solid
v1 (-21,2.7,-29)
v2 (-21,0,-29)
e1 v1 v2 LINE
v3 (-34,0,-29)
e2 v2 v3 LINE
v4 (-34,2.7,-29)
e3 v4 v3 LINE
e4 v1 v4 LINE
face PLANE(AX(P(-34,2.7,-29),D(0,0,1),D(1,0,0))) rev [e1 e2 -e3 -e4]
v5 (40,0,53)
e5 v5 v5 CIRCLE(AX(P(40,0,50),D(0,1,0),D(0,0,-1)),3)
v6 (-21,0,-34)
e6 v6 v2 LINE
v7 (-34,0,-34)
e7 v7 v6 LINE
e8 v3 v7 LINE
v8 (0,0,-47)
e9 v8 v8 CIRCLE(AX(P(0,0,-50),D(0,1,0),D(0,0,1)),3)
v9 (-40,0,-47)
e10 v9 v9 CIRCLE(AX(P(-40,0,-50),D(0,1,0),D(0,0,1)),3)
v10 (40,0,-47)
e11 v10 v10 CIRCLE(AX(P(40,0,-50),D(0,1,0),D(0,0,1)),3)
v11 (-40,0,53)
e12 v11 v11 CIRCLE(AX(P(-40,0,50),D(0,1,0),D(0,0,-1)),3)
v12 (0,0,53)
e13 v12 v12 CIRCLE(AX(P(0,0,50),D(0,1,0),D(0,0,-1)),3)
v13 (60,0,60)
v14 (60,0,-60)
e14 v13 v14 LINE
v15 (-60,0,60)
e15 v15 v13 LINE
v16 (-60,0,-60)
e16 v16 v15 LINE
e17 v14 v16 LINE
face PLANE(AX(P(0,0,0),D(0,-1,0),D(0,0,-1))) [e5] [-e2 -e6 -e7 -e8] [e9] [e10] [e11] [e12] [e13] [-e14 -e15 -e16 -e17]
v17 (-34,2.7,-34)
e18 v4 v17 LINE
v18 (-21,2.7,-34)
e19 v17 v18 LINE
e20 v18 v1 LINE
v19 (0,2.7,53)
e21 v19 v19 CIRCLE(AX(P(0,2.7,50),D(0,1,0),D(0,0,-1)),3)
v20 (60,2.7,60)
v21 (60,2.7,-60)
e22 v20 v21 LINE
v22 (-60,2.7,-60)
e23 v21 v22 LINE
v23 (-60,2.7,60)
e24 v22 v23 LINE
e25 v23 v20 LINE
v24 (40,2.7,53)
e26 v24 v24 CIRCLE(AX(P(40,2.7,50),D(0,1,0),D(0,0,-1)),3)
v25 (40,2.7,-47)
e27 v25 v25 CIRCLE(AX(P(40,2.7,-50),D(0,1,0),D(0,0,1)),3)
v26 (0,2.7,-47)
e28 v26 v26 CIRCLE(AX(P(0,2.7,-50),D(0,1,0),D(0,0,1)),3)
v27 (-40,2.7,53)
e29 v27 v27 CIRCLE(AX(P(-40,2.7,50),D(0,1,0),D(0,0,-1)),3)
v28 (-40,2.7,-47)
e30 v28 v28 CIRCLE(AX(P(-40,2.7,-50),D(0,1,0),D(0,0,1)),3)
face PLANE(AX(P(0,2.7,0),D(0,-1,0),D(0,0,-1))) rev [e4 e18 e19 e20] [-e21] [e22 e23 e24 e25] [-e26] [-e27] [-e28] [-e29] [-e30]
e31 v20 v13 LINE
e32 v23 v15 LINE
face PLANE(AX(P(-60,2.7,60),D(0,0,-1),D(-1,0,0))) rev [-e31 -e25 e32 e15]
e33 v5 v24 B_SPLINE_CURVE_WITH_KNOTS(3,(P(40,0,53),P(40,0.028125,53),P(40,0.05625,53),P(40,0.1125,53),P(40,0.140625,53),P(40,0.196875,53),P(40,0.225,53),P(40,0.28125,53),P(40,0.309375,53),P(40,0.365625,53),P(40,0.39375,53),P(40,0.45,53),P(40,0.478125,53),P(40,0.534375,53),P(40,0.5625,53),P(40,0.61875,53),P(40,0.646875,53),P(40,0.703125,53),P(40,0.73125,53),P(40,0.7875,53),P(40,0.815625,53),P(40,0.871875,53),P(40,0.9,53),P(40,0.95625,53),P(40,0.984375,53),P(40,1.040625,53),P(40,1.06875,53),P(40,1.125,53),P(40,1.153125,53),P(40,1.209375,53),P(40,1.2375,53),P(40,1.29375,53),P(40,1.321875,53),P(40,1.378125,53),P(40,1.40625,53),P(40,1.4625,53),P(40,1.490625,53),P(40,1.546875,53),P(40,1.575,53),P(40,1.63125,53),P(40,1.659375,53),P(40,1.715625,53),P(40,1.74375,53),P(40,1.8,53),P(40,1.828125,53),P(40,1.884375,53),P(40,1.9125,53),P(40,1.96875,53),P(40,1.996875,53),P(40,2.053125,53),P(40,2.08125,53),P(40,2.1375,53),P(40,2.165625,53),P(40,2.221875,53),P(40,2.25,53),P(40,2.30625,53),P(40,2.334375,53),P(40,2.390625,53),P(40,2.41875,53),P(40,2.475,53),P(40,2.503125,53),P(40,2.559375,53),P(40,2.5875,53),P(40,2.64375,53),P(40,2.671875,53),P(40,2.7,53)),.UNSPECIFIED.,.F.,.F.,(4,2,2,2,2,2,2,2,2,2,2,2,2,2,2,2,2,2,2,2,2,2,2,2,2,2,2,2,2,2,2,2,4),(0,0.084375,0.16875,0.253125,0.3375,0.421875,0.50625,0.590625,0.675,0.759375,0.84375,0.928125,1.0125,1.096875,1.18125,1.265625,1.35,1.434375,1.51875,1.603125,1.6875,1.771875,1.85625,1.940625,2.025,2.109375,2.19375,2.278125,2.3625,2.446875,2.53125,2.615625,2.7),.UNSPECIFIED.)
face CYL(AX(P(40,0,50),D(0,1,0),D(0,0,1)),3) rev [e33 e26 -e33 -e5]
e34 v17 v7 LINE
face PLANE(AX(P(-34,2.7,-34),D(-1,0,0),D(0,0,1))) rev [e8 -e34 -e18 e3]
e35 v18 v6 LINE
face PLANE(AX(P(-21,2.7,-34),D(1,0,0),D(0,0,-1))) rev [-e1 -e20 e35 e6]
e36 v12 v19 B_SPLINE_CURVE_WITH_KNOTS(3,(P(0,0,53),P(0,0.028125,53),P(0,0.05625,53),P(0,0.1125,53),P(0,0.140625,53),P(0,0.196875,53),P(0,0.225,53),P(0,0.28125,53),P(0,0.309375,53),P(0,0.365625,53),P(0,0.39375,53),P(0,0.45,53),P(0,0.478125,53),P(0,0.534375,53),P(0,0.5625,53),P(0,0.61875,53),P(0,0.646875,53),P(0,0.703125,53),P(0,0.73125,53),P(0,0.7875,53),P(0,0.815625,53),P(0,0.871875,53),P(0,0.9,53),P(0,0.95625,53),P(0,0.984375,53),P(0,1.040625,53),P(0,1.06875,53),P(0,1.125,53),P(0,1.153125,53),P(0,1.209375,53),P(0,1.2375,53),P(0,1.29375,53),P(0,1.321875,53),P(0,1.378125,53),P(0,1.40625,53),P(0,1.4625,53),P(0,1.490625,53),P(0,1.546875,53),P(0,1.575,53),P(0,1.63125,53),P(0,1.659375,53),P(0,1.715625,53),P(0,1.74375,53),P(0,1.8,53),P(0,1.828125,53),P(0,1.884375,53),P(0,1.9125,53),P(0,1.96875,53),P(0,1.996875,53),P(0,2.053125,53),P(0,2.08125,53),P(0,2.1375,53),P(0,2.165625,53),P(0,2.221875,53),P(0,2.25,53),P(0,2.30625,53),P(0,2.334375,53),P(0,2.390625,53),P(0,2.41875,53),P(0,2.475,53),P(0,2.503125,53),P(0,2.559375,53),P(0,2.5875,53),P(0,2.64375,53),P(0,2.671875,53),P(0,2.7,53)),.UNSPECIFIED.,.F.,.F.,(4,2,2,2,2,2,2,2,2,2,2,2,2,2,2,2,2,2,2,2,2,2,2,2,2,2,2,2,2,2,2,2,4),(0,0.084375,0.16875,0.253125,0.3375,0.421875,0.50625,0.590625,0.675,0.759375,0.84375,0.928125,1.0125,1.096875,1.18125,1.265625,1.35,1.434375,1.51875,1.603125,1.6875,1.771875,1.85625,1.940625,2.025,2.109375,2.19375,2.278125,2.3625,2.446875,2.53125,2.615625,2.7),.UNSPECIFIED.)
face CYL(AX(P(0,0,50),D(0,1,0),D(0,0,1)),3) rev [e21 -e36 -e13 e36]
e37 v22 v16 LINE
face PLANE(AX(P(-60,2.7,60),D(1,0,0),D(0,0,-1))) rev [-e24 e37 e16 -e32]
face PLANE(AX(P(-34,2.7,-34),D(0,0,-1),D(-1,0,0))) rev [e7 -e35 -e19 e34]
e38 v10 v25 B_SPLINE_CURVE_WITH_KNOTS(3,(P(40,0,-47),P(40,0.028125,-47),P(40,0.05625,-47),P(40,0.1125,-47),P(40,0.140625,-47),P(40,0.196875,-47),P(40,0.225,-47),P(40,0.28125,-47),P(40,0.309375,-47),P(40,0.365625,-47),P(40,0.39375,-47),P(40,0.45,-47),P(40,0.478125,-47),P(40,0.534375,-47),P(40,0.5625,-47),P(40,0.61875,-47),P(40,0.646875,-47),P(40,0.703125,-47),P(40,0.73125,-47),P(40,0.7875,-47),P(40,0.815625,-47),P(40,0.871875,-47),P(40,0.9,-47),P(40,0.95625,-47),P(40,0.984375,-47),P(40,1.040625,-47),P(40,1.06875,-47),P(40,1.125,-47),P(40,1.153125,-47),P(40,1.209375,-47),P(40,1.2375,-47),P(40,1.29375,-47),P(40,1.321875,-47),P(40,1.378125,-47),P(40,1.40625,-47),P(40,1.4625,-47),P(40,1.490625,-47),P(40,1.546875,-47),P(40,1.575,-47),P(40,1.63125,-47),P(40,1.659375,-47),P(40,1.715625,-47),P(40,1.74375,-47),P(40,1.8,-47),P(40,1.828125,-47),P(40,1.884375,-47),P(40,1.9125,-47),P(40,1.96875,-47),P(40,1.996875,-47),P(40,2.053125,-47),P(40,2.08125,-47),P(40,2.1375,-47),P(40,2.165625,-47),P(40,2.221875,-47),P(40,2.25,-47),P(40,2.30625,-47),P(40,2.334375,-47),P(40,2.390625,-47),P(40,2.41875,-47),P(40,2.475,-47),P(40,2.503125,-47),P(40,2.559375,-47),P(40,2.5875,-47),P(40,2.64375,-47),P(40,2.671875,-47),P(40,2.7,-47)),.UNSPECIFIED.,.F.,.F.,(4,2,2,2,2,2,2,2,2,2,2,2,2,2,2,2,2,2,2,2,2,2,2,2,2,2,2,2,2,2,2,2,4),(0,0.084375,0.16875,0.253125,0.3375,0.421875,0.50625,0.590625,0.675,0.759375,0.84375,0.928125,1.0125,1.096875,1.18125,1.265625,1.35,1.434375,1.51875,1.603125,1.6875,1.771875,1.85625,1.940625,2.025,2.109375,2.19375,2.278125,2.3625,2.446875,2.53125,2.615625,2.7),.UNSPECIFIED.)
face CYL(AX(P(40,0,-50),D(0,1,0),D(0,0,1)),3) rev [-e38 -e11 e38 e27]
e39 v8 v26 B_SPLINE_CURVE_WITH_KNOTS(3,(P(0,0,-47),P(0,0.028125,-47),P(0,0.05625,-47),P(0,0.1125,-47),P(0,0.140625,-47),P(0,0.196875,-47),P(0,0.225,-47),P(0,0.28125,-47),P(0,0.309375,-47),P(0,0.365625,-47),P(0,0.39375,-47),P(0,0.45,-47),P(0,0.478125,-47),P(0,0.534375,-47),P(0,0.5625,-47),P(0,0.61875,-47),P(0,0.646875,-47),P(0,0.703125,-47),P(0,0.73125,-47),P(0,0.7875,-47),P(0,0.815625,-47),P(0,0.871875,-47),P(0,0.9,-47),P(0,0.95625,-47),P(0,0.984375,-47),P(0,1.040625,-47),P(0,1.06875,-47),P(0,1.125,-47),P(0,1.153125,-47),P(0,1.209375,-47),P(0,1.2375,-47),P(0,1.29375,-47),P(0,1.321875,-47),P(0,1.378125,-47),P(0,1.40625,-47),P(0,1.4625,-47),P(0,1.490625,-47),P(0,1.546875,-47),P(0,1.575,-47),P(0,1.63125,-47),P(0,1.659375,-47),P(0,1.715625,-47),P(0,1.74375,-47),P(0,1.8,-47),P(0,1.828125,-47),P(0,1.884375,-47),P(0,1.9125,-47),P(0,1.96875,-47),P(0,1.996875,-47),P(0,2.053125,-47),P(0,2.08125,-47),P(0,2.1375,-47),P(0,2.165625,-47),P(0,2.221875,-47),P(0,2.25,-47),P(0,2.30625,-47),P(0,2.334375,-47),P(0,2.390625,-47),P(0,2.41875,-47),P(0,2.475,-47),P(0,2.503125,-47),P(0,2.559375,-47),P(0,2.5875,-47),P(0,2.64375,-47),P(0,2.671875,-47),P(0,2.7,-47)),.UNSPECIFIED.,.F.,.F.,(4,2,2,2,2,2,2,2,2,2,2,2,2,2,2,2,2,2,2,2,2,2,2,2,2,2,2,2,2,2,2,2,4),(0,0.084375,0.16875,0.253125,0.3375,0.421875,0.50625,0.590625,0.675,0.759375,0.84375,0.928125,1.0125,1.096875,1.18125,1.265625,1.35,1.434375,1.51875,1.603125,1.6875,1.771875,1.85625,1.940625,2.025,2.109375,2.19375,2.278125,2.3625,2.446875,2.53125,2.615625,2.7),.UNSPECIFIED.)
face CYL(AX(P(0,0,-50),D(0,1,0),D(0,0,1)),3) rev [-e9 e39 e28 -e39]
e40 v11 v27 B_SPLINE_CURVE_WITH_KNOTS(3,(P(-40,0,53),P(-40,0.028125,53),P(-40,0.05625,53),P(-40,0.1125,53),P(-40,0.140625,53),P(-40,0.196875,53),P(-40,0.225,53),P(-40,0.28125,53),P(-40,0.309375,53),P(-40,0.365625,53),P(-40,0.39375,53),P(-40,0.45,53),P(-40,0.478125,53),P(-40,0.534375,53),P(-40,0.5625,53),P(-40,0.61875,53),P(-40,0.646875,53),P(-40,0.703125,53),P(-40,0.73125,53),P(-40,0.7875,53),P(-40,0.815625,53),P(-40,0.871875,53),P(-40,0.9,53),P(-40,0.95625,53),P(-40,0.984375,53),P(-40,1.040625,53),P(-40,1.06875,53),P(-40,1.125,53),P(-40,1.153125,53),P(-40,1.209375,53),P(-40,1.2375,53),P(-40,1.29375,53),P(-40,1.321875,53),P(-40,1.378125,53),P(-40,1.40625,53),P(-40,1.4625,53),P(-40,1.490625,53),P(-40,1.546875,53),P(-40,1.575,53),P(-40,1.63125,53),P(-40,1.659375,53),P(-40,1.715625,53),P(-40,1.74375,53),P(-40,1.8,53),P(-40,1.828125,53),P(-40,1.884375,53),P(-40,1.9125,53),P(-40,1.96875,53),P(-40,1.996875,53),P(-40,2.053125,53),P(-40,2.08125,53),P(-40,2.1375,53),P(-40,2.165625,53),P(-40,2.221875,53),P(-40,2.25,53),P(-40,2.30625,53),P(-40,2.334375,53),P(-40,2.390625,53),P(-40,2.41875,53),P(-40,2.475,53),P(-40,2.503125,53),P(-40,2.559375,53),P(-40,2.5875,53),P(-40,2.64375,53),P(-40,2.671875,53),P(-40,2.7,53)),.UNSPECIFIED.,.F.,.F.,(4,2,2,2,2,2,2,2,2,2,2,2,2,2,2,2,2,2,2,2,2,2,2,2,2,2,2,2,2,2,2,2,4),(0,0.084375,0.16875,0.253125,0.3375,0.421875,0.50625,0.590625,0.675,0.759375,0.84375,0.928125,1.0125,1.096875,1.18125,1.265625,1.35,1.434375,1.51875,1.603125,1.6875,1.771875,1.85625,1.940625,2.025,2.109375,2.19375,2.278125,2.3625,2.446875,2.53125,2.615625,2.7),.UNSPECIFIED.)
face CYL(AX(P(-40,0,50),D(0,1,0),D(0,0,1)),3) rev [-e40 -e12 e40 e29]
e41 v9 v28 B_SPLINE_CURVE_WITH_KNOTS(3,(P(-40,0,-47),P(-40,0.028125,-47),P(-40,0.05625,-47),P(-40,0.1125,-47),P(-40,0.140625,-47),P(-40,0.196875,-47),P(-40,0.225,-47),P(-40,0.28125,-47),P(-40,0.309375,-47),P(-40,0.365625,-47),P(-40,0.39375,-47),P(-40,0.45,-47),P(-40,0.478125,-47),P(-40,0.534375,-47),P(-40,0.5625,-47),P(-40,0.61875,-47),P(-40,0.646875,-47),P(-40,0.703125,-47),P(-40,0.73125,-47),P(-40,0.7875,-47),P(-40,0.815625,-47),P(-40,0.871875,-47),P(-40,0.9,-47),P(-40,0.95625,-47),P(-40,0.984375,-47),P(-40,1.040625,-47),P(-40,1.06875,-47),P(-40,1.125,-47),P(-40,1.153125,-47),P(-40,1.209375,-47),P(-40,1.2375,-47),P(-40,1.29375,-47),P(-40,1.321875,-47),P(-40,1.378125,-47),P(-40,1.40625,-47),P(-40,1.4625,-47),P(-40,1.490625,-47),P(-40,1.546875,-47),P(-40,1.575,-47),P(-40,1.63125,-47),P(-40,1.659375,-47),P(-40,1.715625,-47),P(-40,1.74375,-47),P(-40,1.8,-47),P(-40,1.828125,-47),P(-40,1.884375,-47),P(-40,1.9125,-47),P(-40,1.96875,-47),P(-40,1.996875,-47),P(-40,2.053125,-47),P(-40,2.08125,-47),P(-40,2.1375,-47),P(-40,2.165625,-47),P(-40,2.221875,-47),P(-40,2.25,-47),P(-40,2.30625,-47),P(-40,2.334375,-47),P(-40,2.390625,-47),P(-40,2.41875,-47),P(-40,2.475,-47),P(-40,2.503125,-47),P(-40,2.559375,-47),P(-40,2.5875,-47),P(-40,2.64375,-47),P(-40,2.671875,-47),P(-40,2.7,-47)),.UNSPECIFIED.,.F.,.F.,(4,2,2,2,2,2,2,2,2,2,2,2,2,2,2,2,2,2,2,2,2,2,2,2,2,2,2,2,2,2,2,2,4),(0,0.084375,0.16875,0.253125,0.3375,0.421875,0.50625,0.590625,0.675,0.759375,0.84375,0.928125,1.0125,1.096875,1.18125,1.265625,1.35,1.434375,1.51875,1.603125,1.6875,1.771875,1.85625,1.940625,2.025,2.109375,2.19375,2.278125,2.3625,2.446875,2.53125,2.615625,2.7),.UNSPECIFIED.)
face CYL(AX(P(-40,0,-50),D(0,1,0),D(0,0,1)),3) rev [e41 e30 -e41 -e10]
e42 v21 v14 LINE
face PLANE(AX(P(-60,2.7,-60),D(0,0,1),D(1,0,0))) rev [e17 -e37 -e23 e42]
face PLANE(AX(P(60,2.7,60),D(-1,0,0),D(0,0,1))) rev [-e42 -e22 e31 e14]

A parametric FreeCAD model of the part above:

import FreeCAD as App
import Part
import Sketcher
Q = App.Units.Quantity

doc = App.newDocument("Part")
body = doc.addObject("PartDesign::Body", "Body")

sketch1 = body.newObject("Sketcher::SketchObject", "Sketch")
sketch1.AttachmentSupport = (doc.getObject("XZ_Plane"), [""])
sketch1.MapMode = "FlatFace"
sketch1.addGeometry([
    Part.LineSegment(App.Vector(-60, -60, 0), App.Vector(-60, 60, 0)),
    Part.LineSegment(App.Vector(-60, 60, 0), App.Vector(60, 60, 0)),
    Part.LineSegment(App.Vector(60, 60, 0), App.Vector(60, -60, 0)),
    Part.LineSegment(App.Vector(60, -60, 0), App.Vector(-60, -60, 0)),
], False)
sketch1.addConstraint([
    Sketcher.Constraint("Coincident", 0, 2, 1, 1),
    Sketcher.Constraint("Coincident", 1, 2, 2, 1),
    Sketcher.Constraint("Coincident", 2, 2, 3, 1),
    Sketcher.Constraint("Coincident", 3, 2, 0, 1),
    Sketcher.Constraint("Vertical", 0),
    Sketcher.Constraint("Horizontal", 1),
    Sketcher.Constraint("Vertical", 2),
    Sketcher.Constraint("Horizontal", 3),
    Sketcher.Constraint("Symmetric", 0, 2, 2, 2, -1, 1),
    Sketcher.Constraint("Equal", 3, 0),
    Sketcher.Constraint("DistanceX", 1, 1, 1, 2, Q("120 mm")),
])
pad1 = body.newObject("PartDesign::Pad", "Pad")
pad1.Profile = sketch1
pad1.Length = 2.7
pad1.Reversed = True

sketch2 = body.newObject("Sketcher::SketchObject", "Sketch001")
sketch2.AttachmentSupport = (doc.getObject("XZ_Plane"), [""])
sketch2.MapMode = "FlatFace"
sketch2.AttachmentOffset = App.Placement(App.Vector(0, 0, -2.7), App.Rotation())
sketch2.addGeometry([
    Part.Circle(App.Vector(0, -50, 0), App.Vector(0, 0, 1), 3),
    Part.Circle(App.Vector(40, -50, 0), App.Vector(0, 0, 1), 3),
    Part.Circle(App.Vector(-40, -50, 0), App.Vector(0, 0, 1), 3),
    Part.Circle(App.Vector(-40, 50, 0), App.Vector(0, 0, 1), 3),
    Part.Circle(App.Vector(40, 50, 0), App.Vector(0, 0, 1), 3),
    Part.Circle(App.Vector(0, 50, 0), App.Vector(0, 0, 1), 3),
], False)
sketch2.addConstraint([
    Sketcher.Constraint("Equal", 0, 1),
    Sketcher.Constraint("Equal", 1, 2),
    Sketcher.Constraint("Equal", 2, 3),
    Sketcher.Constraint("Equal", 3, 4),
    Sketcher.Constraint("Equal", 4, 5),
    Sketcher.Constraint("Symmetric", 1, 3, 3, 3, -1, 1),
    Sketcher.Constraint("Symmetric", 2, 3, 4, 3, -1, 1),
    Sketcher.Constraint("Symmetric", 0, 3, 5, 3, -1, 1),
    Sketcher.Constraint("Symmetric", 1, 3, 2, 3, -2),
    Sketcher.Constraint("PointOnObject", 0, 3, -2),
    Sketcher.Constraint("Horizontal", 0, 3, 1, 3),
    Sketcher.Constraint("Diameter", 0, Q("6 mm")),
    Sketcher.Constraint("DistanceY", 0, 3, -1, 1, Q("50 mm")),
    Sketcher.Constraint("DistanceX", -1, 1, 1, 3, Q("40 mm")),
])
pocket1 = body.newObject("PartDesign::Pocket", "Pocket")
pocket1.Profile = sketch2
pocket1.Type = "ThroughAll"
pocket1.Reversed = True

sketch3 = body.newObject("Sketcher::SketchObject", "Sketch002")
sketch3.AttachmentSupport = (doc.getObject("XZ_Plane"), [""])
sketch3.MapMode = "FlatFace"
sketch3.addGeometry([
    Part.LineSegment(App.Vector(-34, -29, 0), App.Vector(-34, -34, 0)),
    Part.LineSegment(App.Vector(-34, -34, 0), App.Vector(-21, -34, 0)),
    Part.LineSegment(App.Vector(-21, -34, 0), App.Vector(-21, -29, 0)),
    Part.LineSegment(App.Vector(-21, -29, 0), App.Vector(-34, -29, 0)),
], False)
sketch3.addConstraint([
    Sketcher.Constraint("Coincident", 0, 2, 1, 1),
    Sketcher.Constraint("Coincident", 1, 2, 2, 1),
    Sketcher.Constraint("Coincident", 2, 2, 3, 1),
    Sketcher.Constraint("Coincident", 3, 2, 0, 1),
    Sketcher.Constraint("Vertical", 0),
    Sketcher.Constraint("Horizontal", 1),
    Sketcher.Constraint("Vertical", 2),
    Sketcher.Constraint("Horizontal", 3),
    Sketcher.Constraint("DistanceX", 1, 1, 1, 2, Q("13 mm")),
    Sketcher.Constraint("DistanceY", 0, 2, 0, 1, Q("5 mm")),
    Sketcher.Constraint("DistanceX", 0, 2, -1, 1, Q("34 mm")),
    Sketcher.Constraint("DistanceY", 0, 2, -1, 1, Q("34 mm")),
])
pocket2 = body.newObject("PartDesign::Pocket", "Pocket001")
pocket2.Profile = sketch3
pocket2.Length = 2.7

doc.recompute()
